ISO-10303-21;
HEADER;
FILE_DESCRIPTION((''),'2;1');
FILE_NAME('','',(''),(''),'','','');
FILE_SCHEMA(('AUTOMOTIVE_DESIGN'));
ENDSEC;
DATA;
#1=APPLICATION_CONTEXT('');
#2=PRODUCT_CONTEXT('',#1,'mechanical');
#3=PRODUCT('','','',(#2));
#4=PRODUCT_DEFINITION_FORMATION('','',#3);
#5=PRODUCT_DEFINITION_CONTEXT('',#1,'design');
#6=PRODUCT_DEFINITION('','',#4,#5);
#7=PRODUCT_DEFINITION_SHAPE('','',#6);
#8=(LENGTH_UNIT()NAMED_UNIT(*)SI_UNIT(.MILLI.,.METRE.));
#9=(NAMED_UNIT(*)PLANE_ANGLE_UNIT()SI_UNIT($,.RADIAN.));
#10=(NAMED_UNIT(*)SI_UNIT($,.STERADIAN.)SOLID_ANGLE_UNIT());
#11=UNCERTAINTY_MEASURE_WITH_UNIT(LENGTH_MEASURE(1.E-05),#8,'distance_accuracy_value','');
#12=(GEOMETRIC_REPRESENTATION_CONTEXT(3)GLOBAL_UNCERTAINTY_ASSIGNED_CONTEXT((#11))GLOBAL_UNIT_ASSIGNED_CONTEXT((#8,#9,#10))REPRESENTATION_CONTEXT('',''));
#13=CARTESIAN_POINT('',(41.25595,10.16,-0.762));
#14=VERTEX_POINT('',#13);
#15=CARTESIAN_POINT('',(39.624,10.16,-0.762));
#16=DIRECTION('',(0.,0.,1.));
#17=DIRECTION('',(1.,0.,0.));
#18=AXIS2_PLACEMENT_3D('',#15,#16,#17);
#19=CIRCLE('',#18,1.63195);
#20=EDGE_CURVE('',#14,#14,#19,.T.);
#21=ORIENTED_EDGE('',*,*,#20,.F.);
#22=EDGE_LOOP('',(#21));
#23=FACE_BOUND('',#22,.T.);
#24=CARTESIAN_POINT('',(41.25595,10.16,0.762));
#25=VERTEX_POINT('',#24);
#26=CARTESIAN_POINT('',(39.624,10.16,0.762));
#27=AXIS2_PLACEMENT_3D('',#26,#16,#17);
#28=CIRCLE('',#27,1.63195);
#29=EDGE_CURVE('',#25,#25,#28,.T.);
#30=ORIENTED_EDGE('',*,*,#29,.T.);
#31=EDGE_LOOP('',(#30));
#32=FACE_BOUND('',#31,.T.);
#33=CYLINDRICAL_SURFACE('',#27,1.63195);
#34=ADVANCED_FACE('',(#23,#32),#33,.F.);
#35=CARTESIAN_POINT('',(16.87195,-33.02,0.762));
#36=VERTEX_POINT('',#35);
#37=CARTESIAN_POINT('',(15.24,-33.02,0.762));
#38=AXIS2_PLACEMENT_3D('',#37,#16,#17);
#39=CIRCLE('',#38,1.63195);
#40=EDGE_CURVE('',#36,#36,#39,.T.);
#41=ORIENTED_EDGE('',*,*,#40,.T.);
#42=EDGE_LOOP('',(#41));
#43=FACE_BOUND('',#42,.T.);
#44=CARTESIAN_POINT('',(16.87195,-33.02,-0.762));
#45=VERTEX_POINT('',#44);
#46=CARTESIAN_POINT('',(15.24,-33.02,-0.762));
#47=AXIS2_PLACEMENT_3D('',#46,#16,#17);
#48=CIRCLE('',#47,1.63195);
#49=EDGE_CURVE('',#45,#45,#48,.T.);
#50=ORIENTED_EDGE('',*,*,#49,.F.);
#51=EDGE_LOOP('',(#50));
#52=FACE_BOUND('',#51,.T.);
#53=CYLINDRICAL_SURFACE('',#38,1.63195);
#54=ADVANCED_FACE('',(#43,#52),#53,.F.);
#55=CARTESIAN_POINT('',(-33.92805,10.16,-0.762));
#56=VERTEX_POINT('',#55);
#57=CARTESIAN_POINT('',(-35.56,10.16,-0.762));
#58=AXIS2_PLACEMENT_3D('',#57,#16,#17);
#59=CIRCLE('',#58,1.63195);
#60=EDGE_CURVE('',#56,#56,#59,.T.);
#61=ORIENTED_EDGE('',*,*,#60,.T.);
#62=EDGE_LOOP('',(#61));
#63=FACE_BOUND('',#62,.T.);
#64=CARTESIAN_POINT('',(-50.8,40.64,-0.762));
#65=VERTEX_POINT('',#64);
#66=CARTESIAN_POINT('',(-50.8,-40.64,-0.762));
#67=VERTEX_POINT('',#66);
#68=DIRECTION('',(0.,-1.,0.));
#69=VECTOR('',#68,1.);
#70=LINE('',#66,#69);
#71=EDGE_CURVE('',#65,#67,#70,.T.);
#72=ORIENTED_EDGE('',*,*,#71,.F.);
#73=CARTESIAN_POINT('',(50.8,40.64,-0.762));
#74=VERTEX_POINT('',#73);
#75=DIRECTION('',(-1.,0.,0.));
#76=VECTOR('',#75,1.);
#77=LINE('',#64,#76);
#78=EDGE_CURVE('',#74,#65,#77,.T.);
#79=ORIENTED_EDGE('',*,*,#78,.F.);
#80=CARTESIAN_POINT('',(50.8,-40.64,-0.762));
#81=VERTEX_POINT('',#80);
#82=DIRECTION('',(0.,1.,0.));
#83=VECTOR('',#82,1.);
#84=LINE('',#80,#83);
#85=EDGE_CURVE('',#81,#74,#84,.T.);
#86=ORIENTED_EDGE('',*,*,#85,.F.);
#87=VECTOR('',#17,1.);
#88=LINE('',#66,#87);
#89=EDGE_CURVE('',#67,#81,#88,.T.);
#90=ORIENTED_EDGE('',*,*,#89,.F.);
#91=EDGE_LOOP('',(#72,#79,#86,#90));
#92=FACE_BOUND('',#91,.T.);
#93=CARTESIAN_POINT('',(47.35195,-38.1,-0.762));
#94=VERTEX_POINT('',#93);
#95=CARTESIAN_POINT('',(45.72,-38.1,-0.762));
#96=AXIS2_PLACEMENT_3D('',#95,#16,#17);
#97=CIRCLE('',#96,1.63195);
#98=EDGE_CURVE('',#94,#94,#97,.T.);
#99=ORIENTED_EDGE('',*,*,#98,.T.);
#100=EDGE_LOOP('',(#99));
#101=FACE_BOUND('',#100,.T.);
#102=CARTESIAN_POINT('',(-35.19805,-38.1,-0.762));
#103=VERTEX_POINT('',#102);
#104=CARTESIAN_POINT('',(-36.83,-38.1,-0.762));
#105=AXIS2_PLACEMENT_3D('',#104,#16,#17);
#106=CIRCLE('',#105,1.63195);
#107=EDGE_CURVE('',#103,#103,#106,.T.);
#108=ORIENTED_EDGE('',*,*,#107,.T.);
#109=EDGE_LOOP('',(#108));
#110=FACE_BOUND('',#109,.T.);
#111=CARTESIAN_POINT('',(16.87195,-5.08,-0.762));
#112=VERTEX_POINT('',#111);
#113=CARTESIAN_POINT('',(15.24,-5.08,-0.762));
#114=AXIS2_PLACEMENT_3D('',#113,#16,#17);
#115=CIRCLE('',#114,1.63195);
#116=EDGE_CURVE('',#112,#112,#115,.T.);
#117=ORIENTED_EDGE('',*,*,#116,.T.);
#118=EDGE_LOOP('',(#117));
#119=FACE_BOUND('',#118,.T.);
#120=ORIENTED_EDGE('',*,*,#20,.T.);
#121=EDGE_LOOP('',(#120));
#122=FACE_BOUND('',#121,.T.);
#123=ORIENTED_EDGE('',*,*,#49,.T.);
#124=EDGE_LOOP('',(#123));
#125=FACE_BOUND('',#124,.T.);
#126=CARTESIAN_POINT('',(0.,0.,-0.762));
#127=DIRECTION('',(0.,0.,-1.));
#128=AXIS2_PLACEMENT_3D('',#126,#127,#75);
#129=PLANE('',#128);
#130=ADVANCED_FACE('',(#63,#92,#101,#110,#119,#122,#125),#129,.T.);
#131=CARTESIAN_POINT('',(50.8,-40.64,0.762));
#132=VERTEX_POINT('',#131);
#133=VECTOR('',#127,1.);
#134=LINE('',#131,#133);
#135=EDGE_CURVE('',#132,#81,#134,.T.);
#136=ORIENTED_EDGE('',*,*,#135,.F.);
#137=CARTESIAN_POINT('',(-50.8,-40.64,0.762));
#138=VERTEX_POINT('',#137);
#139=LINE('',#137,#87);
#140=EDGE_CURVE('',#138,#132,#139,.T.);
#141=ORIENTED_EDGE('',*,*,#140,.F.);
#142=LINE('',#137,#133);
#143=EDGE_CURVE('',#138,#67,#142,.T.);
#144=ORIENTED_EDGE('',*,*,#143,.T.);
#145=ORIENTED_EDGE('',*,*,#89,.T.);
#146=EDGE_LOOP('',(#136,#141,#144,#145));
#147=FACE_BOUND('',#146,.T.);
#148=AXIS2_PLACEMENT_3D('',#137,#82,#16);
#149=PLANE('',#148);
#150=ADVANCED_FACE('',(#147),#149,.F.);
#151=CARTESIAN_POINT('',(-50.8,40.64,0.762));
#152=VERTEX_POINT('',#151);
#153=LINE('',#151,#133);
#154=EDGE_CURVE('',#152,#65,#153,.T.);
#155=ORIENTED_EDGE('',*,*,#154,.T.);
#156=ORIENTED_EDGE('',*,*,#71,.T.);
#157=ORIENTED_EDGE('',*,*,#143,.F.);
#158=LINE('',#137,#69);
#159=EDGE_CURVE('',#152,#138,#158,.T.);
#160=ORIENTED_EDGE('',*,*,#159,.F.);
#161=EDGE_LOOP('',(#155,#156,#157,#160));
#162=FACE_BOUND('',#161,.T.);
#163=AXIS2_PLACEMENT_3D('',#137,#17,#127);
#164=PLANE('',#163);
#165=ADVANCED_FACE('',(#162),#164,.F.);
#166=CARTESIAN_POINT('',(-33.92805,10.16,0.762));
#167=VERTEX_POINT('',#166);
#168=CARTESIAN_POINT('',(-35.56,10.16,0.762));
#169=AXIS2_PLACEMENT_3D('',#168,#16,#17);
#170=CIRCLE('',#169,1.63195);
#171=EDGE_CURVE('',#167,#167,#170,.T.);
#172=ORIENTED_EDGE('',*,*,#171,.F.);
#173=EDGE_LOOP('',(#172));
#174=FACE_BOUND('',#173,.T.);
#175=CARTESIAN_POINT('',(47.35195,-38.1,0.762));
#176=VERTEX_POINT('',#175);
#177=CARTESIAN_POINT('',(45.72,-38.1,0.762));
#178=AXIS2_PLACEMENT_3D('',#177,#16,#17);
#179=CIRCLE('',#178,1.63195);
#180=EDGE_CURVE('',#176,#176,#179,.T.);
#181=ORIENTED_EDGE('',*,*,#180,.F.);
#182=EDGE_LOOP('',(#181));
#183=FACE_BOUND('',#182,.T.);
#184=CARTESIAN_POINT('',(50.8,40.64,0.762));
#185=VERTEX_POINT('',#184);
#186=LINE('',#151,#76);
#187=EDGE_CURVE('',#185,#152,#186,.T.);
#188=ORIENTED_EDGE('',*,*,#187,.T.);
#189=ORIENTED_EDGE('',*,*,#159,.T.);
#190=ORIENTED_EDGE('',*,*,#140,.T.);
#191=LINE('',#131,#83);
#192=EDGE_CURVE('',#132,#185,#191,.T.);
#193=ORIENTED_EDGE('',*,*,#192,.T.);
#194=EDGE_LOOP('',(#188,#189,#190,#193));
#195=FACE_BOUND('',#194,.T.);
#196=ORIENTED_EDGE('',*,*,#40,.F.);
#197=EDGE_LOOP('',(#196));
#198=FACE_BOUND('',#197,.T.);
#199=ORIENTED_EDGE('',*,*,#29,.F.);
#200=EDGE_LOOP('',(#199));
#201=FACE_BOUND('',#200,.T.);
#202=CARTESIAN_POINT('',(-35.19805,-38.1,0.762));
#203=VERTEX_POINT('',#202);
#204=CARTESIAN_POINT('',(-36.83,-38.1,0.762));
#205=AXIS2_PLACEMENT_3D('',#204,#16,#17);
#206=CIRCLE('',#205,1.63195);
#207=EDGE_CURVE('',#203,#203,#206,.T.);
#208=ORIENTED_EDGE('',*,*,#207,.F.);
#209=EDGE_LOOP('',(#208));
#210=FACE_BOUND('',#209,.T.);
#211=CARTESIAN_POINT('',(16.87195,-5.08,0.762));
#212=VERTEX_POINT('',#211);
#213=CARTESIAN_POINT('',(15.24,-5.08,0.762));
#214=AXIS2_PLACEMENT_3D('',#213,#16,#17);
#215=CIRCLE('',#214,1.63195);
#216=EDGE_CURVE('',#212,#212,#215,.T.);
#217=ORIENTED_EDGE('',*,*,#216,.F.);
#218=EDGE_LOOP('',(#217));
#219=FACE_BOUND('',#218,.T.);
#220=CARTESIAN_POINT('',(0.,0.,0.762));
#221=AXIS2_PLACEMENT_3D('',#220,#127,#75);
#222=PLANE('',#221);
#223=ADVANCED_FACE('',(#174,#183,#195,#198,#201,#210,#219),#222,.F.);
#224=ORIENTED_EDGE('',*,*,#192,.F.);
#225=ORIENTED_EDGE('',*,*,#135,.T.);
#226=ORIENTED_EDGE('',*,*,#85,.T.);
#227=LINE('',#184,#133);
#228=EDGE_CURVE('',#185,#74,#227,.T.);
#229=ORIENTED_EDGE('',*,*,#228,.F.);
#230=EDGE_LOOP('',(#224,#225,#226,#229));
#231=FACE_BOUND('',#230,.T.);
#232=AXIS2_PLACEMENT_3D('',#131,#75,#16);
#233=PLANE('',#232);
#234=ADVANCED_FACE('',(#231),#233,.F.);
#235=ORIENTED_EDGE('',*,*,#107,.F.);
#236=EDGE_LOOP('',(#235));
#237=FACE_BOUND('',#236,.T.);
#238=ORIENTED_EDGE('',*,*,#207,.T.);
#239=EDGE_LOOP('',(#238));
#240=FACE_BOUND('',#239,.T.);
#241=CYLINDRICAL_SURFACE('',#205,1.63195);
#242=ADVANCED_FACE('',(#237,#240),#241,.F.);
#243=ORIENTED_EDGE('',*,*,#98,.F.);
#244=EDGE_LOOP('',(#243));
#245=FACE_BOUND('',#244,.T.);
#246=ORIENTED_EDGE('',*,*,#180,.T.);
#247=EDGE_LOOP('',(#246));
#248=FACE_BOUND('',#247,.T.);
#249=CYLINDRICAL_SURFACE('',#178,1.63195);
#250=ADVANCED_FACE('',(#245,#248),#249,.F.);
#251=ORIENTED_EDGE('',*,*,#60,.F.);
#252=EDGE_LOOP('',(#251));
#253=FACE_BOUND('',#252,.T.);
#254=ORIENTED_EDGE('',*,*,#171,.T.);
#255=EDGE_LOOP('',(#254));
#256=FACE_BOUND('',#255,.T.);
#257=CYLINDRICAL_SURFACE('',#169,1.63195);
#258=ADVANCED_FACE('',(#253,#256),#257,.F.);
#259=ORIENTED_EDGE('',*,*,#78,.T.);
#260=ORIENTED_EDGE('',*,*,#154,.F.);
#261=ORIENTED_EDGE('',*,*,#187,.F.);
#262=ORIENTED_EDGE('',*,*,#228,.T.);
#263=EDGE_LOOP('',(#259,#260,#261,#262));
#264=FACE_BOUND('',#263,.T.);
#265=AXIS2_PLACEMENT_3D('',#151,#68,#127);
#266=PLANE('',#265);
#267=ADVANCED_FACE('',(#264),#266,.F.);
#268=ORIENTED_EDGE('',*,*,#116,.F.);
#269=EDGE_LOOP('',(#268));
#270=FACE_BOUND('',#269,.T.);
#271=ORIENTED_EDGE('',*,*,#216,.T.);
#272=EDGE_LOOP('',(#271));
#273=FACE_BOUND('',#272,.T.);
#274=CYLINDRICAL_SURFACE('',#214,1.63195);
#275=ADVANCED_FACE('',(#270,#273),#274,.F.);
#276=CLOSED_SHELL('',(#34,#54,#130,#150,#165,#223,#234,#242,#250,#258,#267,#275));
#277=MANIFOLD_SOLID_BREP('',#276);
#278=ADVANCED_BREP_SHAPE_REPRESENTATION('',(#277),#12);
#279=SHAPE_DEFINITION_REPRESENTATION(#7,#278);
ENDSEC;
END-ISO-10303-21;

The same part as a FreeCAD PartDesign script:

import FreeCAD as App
import Part
import Sketcher
Q = App.Units.Quantity


def add_polygon(sketch, points):
    """Adds a closed chain of lines whose ends are joined by coincident constraints."""
    first, n = sketch.GeometryCount, len(points)
    for a, b in zip(points, points[1:] + points[:1]):
        sketch.addGeometry(Part.LineSegment(App.Vector(*a, 0), App.Vector(*b, 0)), False)
    for i in range(n):
        sketch.addConstraint(Sketcher.Constraint("Coincident", first + i, 2, first + (i + 1) % n, 1))

doc = App.newDocument("Part")
body = doc.addObject("PartDesign::Body", "Body")

sketch1 = body.newObject("Sketcher::SketchObject", "Sketch")
sketch1.AttachmentSupport = (doc.getObject("XY_Plane"), [""])
sketch1.MapMode = "FlatFace"
add_polygon(sketch1, [(-51, 41), (-51, -41), (51, -41), (51, 41)])
sketch1.addConstraint([
    Sketcher.Constraint("Vertical", 0),
    Sketcher.Constraint("Horizontal", 1),
    Sketcher.Constraint("Vertical", 2),
    Sketcher.Constraint("Horizontal", 3),
    Sketcher.Constraint("Symmetric", 0, 2, 2, 2, -1, 1),
    Sketcher.Constraint("DistanceX", 1, 1, 1, 2, Q("4 in")),
    Sketcher.Constraint("DistanceY", 0, 2, 0, 1, Q("3.2 in")),
])
pad1 = body.newObject("PartDesign::Pad", "Pad")
pad1.Profile = sketch1
pad1.Length = Q("0.06 in")
pad1.Midplane = True

sketch2 = body.newObject("Sketcher::SketchObject", "Sketch001")
sketch2.AttachmentSupport = (doc.getObject("XY_Plane"), [""])
sketch2.MapMode = "FlatFace"
sketch2.AttachmentOffset = App.Placement(App.Vector(0, 0, 0.03 * 25.4), App.Rotation())
sketch2.addGeometry([
    Part.Circle(App.Vector(-36.8, -38.1, 0), App.Vector(0, 0, 1), 1.6),
    Part.Circle(App.Vector(15.2, -33, 0), App.Vector(0, 0, 1), 1.6),
    Part.Circle(App.Vector(15.2, -5.1, 0), App.Vector(0, 0, 1), 1.6),
    Part.Circle(App.Vector(45.7, -38.1, 0), App.Vector(0, 0, 1), 1.6),
    Part.Circle(App.Vector(-35.6, 10.2, 0), App.Vector(0, 0, 1), 1.6),
    Part.Circle(App.Vector(39.6, 10.2, 0), App.Vector(0, 0, 1), 1.6),
], False)
sketch2.addConstraint([
    Sketcher.Constraint("Equal", 0, 1),
    Sketcher.Constraint("Equal", 1, 2),
    Sketcher.Constraint("Equal", 2, 3),
    Sketcher.Constraint("Equal", 3, 4),
    Sketcher.Constraint("Equal", 4, 5),
    Sketcher.Constraint("Horizontal", 0, 3, 3, 3),
    Sketcher.Constraint("Horizontal", 4, 3, 5, 3),
    Sketcher.Constraint("Vertical", 1, 3, 2, 3),
    Sketcher.Constraint("DistanceX", 4, 3, 2, 3, Q("2 in")),
    Sketcher.Constraint("Diameter", 0, Q("0.1285 in")),
    Sketcher.Constraint("DistanceY", 0, 3, -1, 1, Q("1.5 in")),
    Sketcher.Constraint("DistanceX", -1, 1, 1, 3, Q("0.6 in")),
    Sketcher.Constraint("DistanceY", 1, 3, -1, 1, Q("1.3 in")),
    Sketcher.Constraint("DistanceY", 2, 3, -1, 1, Q("0.2 in")),
    Sketcher.Constraint("DistanceX", -1, 1, 3, 3, Q("1.8 in")),
    Sketcher.Constraint("DistanceY", -1, 1, 4, 3, Q("0.4 in")),
    Sketcher.Constraint("DistanceX", 0, 3, -1, 1, Q("1.45 in")),
    Sketcher.Constraint("DistanceX", -1, 1, 5, 3, Q("1.56 in")),
])
doc.recompute()
hole = body.newObject("PartDesign::Hole", "Hole")
hole.Profile = sketch2
hole.ThreadType = "None"
hole.Diameter = Q("0.1285 in")
hole.DepthType = "ThroughAll"

doc.recompute()
